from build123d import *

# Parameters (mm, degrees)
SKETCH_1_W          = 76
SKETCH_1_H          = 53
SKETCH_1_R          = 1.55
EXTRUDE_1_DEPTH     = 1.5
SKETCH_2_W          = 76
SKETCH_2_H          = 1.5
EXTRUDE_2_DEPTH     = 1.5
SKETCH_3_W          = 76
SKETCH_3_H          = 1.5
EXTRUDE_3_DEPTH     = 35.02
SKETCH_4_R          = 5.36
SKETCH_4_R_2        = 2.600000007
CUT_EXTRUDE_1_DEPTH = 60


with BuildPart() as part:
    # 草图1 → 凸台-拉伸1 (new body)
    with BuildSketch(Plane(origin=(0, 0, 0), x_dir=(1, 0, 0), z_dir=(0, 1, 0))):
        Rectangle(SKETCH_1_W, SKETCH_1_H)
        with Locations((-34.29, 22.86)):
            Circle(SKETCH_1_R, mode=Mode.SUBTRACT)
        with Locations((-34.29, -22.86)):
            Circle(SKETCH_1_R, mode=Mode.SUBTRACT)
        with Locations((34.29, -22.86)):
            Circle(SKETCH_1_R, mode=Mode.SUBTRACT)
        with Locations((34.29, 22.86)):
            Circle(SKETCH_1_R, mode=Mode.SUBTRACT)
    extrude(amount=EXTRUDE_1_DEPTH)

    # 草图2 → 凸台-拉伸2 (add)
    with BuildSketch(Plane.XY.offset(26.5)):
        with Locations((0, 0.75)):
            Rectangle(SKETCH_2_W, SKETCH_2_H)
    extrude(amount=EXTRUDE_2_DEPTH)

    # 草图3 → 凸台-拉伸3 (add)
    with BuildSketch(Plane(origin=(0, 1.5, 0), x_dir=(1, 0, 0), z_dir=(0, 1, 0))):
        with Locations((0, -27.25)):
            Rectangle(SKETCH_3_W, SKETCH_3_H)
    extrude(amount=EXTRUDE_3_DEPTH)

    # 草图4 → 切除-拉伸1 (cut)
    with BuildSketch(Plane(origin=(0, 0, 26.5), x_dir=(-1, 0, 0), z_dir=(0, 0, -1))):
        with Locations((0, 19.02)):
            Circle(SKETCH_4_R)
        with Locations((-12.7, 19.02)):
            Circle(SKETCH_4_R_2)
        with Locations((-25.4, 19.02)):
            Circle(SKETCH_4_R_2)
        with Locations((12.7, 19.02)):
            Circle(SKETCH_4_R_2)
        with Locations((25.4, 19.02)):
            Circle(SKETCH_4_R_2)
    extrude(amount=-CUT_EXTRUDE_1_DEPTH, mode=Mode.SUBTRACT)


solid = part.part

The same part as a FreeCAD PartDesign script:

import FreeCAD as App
import Part
import Sketcher


def add_polygon(sketch, points):
    """Adds a closed chain of lines whose ends are joined by coincident constraints."""
    first, n = sketch.GeometryCount, len(points)
    for a, b in zip(points, points[1:] + points[:1]):
        sketch.addGeometry(Part.LineSegment(App.Vector(*a, 0), App.Vector(*b, 0)), False)
    for i in range(n):
        sketch.addConstraint(Sketcher.Constraint("Coincident", first + i, 2, first + (i + 1) % n, 1))

doc = App.newDocument("Part")
body = doc.addObject("PartDesign::Body", "Body")

# Sketch on XZ plane
sketch1 = body.newObject("Sketcher::SketchObject", "Sketch")
sketch1.AttachmentSupport = (doc.getObject("XZ_Plane"), [""])
sketch1.MapMode = "FlatFace"
add_polygon(sketch1, [(-38, -26.5), (-38, 26.5), (38, 26.5), (38, -26.5)])  # lines 0-3
sketch1.addGeometry(Part.Circle(App.Vector(-34.3, 22.9, 0), App.Vector(0, 0, 1), 1.6), False)  # 4
sketch1.addGeometry(Part.Circle(App.Vector(34.3, 22.9, 0), App.Vector(0, 0, 1), 1.6), False)  # 5
sketch1.addGeometry(Part.Circle(App.Vector(-34.3, -22.9, 0), App.Vector(0, 0, 1), 1.6), False)  # 6
sketch1.addGeometry(Part.Circle(App.Vector(34.3, -22.9, 0), App.Vector(0, 0, 1), 1.6), False)  # 7
sketch1.addConstraint([
    Sketcher.Constraint("Vertical", 0),
    Sketcher.Constraint("Horizontal", 1),
    Sketcher.Constraint("Vertical", 2),
    Sketcher.Constraint("Horizontal", 3),
    Sketcher.Constraint("Equal", 4, 5),
    Sketcher.Constraint("Equal", 5, 6),
    Sketcher.Constraint("Equal", 6, 7),
    Sketcher.Constraint("Symmetric", 5, 3, 6, 3, -1, 1),
    Sketcher.Constraint("Symmetric", 4, 3, 7, 3, -1, 1),
    Sketcher.Constraint("Symmetric", 0, 2, 2, 2, -1, 1),
    Sketcher.Constraint("Symmetric", 4, 3, 5, 3, -2),
    Sketcher.Constraint("Diameter", 4, 3.1),
    Sketcher.Constraint("DistanceX", 1, 1, 1, 2, 76.0),
    Sketcher.Constraint("DistanceY", 0, 1, 0, 2, 53.0),
    Sketcher.Constraint("DistanceX", 4, 3, -1, 1, 34.29),
    Sketcher.Constraint("DistanceY", -1, 1, 4, 3, 22.86),
])
pad1 = body.newObject("PartDesign::Pad", "Pad")
pad1.Profile = sketch1
pad1.Length = 1.5
pad1.Reversed = True

# Sketch on XY plane
sketch2 = body.newObject("Sketcher::SketchObject", "Sketch001")
sketch2.AttachmentSupport = (doc.getObject("XY_Plane"), [""])
sketch2.MapMode = "FlatFace"
sketch2.AttachmentOffset = App.Placement(App.Vector(0, 0, 26.5), App.Rotation())
add_polygon(sketch2, [(-38, 1.5), (-38, 0), (38, 0), (38, 1.5)])  # lines 0-3
sketch2.addConstraint([
    Sketcher.Constraint("Vertical", 0),
    Sketcher.Constraint("Horizontal", 1),
    Sketcher.Constraint("Vertical", 2),
    Sketcher.Constraint("Horizontal", 3),
    Sketcher.Constraint("Symmetric", 0, 2, 1, 2, -1, 1),
    Sketcher.Constraint("DistanceX", 1, 1, 1, 2, 76.0),
    Sketcher.Constraint("DistanceY", 0, 2, 0, 1, 1.5),
])
pad2 = body.newObject("PartDesign::Pad", "Pad001")
pad2.Profile = sketch2
pad2.Length = 1.5

# Sketch on XZ plane
sketch3 = body.newObject("Sketcher::SketchObject", "Sketch002")
sketch3.AttachmentSupport = (doc.getObject("XZ_Plane"), [""])
sketch3.MapMode = "FlatFace"
sketch3.AttachmentOffset = App.Placement(App.Vector(0, 0, -1.5), App.Rotation())
add_polygon(sketch3, [(-38, 26.5), (-38, 28), (38, 28), (38, 26.5)])  # lines 0-3
sketch3.addConstraint([
    Sketcher.Constraint("Vertical", 0),
    Sketcher.Constraint("Horizontal", 1),
    Sketcher.Constraint("Vertical", 2),
    Sketcher.Constraint("Horizontal", 3),
    Sketcher.Constraint("DistanceX", 1, 1, 1, 2, 76.0),
    Sketcher.Constraint("DistanceY", 0, 1, 0, 2, 1.5),
    Sketcher.Constraint("DistanceX", 0, 2, -1, 1, 38.0),
    Sketcher.Constraint("DistanceY", -1, 1, 0, 2, 28.0),
])
pad3 = body.newObject("PartDesign::Pad", "Pad002")
pad3.Profile = sketch3
pad3.Length = 35.02
pad3.Reversed = True

# Sketch on XY plane
sketch4 = body.newObject("Sketcher::SketchObject", "Sketch003")
sketch4.AttachmentSupport = (doc.getObject("XY_Plane"), [""])
sketch4.MapMode = "FlatFace"
sketch4.AttachmentOffset = App.Placement(App.Vector(0, 0, 26.5), App.Rotation())
sketch4.addGeometry([
    Part.Circle(App.Vector(0, 19, 0), App.Vector(0, 0, 1), 5.4),  # 0
    Part.Circle(App.Vector(12.7, 19, 0), App.Vector(0, 0, 1), 2.6),  # 1
    Part.Circle(App.Vector(25.4, 19, 0), App.Vector(0, 0, 1), 2.6),  # 2
    Part.Circle(App.Vector(-12.7, 19, 0), App.Vector(0, 0, 1), 2.6),  # 3
    Part.Circle(App.Vector(-25.4, 19, 0), App.Vector(0, 0, 1), 2.6),  # 4
], False)
sketch4.addConstraint([
    Sketcher.Constraint("Equal", 1, 2),
    Sketcher.Constraint("Equal", 2, 3),
    Sketcher.Constraint("Equal", 3, 4),
    Sketcher.Constraint("Symmetric", 1, 3, 3, 3, -2),
    Sketcher.Constraint("Symmetric", 2, 3, 4, 3, -2),
    Sketcher.Constraint("PointOnObject", 0, 3, -2),
    Sketcher.Constraint("Horizontal", 0, 3, 1, 3),
    Sketcher.Constraint("Horizontal", 1, 3, 2, 3),
    Sketcher.Constraint("Diameter", 1, 5.2),
    Sketcher.Constraint("Diameter", 0, 10.72),
    Sketcher.Constraint("DistanceX", -1, 1, 1, 3, 12.7),
    Sketcher.Constraint("DistanceX", -1, 1, 2, 3, 25.4),
    Sketcher.Constraint("DistanceY", -1, 1, 0, 3, 19.02),
])
pocket1 = body.newObject("PartDesign::Pocket", "Pocket")
pocket1.Profile = sketch4
pocket1.Length = 60
pocket1.Reversed = True

doc.recompute()
